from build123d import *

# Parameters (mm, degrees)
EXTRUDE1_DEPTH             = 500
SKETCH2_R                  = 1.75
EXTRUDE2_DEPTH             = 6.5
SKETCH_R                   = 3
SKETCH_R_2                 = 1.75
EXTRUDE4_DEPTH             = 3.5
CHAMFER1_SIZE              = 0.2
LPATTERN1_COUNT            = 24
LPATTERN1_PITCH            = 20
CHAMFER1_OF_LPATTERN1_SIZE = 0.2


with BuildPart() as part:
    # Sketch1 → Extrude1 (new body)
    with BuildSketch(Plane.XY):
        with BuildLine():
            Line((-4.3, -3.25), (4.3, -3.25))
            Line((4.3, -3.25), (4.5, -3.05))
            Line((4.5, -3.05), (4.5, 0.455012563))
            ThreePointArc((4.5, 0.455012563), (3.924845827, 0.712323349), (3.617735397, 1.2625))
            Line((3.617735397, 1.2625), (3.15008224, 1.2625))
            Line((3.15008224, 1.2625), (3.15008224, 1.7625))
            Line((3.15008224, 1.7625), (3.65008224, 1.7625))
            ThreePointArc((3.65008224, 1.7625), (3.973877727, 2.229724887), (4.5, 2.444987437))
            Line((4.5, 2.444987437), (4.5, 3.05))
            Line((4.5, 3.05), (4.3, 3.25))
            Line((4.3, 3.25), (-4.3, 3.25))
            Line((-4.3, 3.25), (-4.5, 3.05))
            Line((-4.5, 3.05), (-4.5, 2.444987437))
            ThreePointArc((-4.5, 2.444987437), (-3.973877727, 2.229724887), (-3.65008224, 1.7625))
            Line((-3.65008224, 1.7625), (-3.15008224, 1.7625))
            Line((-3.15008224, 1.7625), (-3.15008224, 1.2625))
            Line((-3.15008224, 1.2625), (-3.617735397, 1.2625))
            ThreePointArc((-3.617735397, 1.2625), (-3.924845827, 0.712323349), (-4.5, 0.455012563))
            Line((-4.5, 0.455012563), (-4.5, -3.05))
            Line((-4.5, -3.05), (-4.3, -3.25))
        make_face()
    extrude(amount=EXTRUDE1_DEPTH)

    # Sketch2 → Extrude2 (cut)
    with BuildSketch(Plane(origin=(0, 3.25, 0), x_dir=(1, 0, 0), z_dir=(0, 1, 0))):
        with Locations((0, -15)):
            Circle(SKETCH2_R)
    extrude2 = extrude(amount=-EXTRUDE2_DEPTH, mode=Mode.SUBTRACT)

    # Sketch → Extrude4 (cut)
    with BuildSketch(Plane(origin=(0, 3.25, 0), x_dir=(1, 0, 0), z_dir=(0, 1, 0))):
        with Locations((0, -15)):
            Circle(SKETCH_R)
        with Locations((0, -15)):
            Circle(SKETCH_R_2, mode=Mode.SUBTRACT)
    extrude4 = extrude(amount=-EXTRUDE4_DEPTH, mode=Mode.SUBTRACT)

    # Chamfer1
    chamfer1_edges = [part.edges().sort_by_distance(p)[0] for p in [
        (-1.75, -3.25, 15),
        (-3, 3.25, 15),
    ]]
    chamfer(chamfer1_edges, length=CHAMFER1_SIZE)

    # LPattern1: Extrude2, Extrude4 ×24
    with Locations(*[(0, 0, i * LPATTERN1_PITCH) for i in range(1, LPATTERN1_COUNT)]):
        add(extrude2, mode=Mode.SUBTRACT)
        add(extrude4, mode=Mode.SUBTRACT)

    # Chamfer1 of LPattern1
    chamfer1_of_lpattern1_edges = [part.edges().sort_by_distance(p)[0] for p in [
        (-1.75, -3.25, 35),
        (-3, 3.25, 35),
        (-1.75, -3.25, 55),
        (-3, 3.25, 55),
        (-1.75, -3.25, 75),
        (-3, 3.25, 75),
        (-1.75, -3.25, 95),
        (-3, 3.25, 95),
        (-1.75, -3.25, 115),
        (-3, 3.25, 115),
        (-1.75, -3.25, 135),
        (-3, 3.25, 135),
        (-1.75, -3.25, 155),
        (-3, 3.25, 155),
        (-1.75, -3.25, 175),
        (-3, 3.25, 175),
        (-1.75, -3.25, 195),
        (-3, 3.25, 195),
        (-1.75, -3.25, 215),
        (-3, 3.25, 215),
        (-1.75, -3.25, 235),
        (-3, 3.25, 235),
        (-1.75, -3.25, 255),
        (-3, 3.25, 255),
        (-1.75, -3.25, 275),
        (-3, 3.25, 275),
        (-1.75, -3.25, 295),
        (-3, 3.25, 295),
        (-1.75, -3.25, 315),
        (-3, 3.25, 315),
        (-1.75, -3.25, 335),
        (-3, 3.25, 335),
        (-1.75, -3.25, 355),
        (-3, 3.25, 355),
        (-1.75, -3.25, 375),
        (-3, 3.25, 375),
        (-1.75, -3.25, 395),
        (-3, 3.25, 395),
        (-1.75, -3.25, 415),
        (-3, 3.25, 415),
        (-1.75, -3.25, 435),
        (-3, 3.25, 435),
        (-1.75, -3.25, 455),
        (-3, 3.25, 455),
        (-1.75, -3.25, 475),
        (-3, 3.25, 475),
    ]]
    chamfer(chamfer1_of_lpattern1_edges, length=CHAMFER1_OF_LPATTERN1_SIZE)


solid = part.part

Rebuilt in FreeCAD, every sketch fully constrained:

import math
import FreeCAD as App
import Part
import Sketcher

V = App.Vector
Q = App.Units.Quantity


def edges_at(feature, points):
    """Names of the edges that pass closest to the given points."""
    edges = feature.Shape.Edges
    near = lambda p: min(range(len(edges)), key=lambda i: edges[i].distToShape(Part.Vertex(*p))[0])
    return sorted({f"Edge{near(p) + 1}" for p in points})

doc = App.newDocument("Part")
body = doc.addObject("PartDesign::Body", "Body")

# Sketch on XY plane
sketch1 = body.newObject("Sketcher::SketchObject", "Sketch")
sketch1.AttachmentSupport = (doc.getObject("XY_Plane"), [""])
sketch1.MapMode = "FlatFace"
sketch1.addGeometry([
    Part.LineSegment(V(-4.3, -3.25, 0), V(4.3, -3.25, 0)),  # 0
    Part.LineSegment(V(4.3, -3.25, 0), V(4.5, -3.05, 0)),  # 1
    Part.LineSegment(V(4.5, -3.05, 0), V(4.5, 0.46, 0)),  # 2
    Part.ArcOfCircle(Part.Circle(V(4.6, 1.45, 0), V(0, 0, 1), 1), math.radians(-169), math.radians(-96)),  # 3
    Part.LineSegment(V(3.62, 1.26, 0), V(3.15, 1.26, 0)),  # 4
    Part.LineSegment(V(3.15, 1.26, 0), V(3.15, 1.76, 0)),  # 5
    Part.LineSegment(V(3.15, 1.76, 0), V(3.65, 1.76, 0)),  # 6
    Part.ArcOfCircle(Part.Circle(V(4.6, 1.45, 0), V(0, 0, 1), 1), math.radians(96), math.radians(162)),  # 7
    Part.LineSegment(V(4.5, 2.44, 0), V(4.5, 3.05, 0)),  # 8
    Part.LineSegment(V(4.5, 3.05, 0), V(4.3, 3.25, 0)),  # 9
    Part.LineSegment(V(4.3, 3.25, 0), V(-4.3, 3.25, 0)),  # 10
    Part.LineSegment(V(-4.3, 3.25, 0), V(-4.5, 3.05, 0)),  # 11
    Part.LineSegment(V(-4.5, 3.05, 0), V(-4.5, 2.44, 0)),  # 12
    Part.ArcOfCircle(Part.Circle(V(-4.6, 1.45, 0), V(0, 0, 1), 1), math.radians(18), math.radians(84)),  # 13
    Part.LineSegment(V(-3.65, 1.76, 0), V(-3.15, 1.76, 0)),  # 14
    Part.LineSegment(V(-3.15, 1.76, 0), V(-3.15, 1.26, 0)),  # 15
    Part.LineSegment(V(-3.15, 1.26, 0), V(-3.62, 1.26, 0)),  # 16
    Part.ArcOfCircle(Part.Circle(V(-4.6, 1.45, 0), V(0, 0, 1), 1), math.radians(-84), math.radians(-11)),  # 17
    Part.LineSegment(V(-4.5, 0.46, 0), V(-4.5, -3.05, 0)),  # 18
    Part.LineSegment(V(-4.5, -3.05, 0), V(-4.3, -3.25, 0)),  # 19
], False)
sketch1.addConstraint([
    Sketcher.Constraint("Coincident", 0, 2, 1, 1),
    Sketcher.Constraint("Coincident", 1, 2, 2, 1),
    Sketcher.Constraint("Coincident", 2, 2, 3, 2),
    Sketcher.Constraint("Coincident", 3, 1, 4, 1),
    Sketcher.Constraint("Coincident", 4, 2, 5, 1),
    Sketcher.Constraint("Coincident", 5, 2, 6, 1),
    Sketcher.Constraint("Coincident", 6, 2, 7, 2),
    Sketcher.Constraint("Coincident", 7, 1, 8, 1),
    Sketcher.Constraint("Coincident", 8, 2, 9, 1),
    Sketcher.Constraint("Coincident", 9, 2, 10, 1),
    Sketcher.Constraint("Coincident", 10, 2, 11, 1),
    Sketcher.Constraint("Coincident", 11, 2, 12, 1),
    Sketcher.Constraint("Coincident", 12, 2, 13, 2),
    Sketcher.Constraint("Coincident", 13, 1, 14, 1),
    Sketcher.Constraint("Coincident", 14, 2, 15, 1),
    Sketcher.Constraint("Coincident", 15, 2, 16, 1),
    Sketcher.Constraint("Coincident", 16, 2, 17, 2),
    Sketcher.Constraint("Coincident", 17, 1, 18, 1),
    Sketcher.Constraint("Coincident", 18, 2, 19, 1),
    Sketcher.Constraint("Coincident", 19, 2, 0, 1),
    Sketcher.Constraint("Horizontal", 0),
    Sketcher.Constraint("Vertical", 2),
    Sketcher.Constraint("Horizontal", 4),
    Sketcher.Constraint("Vertical", 5),
    Sketcher.Constraint("Horizontal", 6),
    Sketcher.Constraint("Vertical", 8),
    Sketcher.Constraint("Horizontal", 10),
    Sketcher.Constraint("Vertical", 12),
    Sketcher.Constraint("Horizontal", 14),
    Sketcher.Constraint("Vertical", 15),
    Sketcher.Constraint("Horizontal", 16),
    Sketcher.Constraint("Vertical", 18),
    Sketcher.Constraint("Coincident", 7, 3, 3, 3),
    Sketcher.Constraint("Coincident", 17, 3, 13, 3),
    Sketcher.Constraint("Equal", 3, 7),
    Sketcher.Constraint("Equal", 7, 13),
    Sketcher.Constraint("Equal", 13, 17),
    Sketcher.Constraint("Symmetric", 0, 2, 10, 2, -1, 1),
    Sketcher.Constraint("Symmetric", 1, 2, 11, 2, -1, 1),
    Sketcher.Constraint("Symmetric", 8, 2, 18, 2, -1, 1),
    Sketcher.Constraint("Symmetric", 3, 3, 13, 3, -2),
    Sketcher.Constraint("Symmetric", 8, 2, 11, 2, -2),
    Sketcher.Constraint("Symmetric", 5, 2, 14, 2, -2),
    Sketcher.Constraint("Perpendicular", 1, 9),
    Sketcher.Constraint("Perpendicular", 11, 19),
    Sketcher.Constraint("Horizontal", 4, 2, 15, 2),
    Sketcher.Constraint("Vertical", 0, 2, 9, 2),
    Sketcher.Constraint("Equal", 14, 5),
    Sketcher.Constraint("Radius", 3, Q("1 mm")),
    Sketcher.Constraint("DistanceX", 0, 1, 0, 2, Q("8.6 mm")),
    Sketcher.Constraint("DistanceX", 6, 1, 6, 2, Q("0.5 mm")),
    Sketcher.Constraint("DistanceX", -1, 1, 3, 3, Q("4.6 mm")),
    Sketcher.Constraint("DistanceX", -1, 1, 1, 2, Q("4.5 mm")),
    Sketcher.Constraint("DistanceY", 0, 2, 7, 3, Q("4.7 mm")),
    Sketcher.Constraint("DistanceY", 3, 3, 8, 2, Q("1.6 mm")),
    Sketcher.Constraint("DistanceY", -1, 1, 3, 1, Q("1.2625 mm")),
])
pad1 = body.newObject("PartDesign::Pad", "Pad")
pad1.Profile = sketch1
pad1.Length = 500

# Sketch on XZ plane
sketch2 = body.newObject("Sketcher::SketchObject", "Sketch001")
sketch2.AttachmentSupport = (doc.getObject("XZ_Plane"), [""])
sketch2.MapMode = "FlatFace"
sketch2.AttachmentOffset = App.Placement(V(0, 0, -3.25), App.Rotation())
sketch2.addGeometry(Part.Circle(V(0, 15, 0), V(0, 0, 1), 1.8), False)
sketch2.addConstraint([
    Sketcher.Constraint("PointOnObject", 0, 3, -2),
    Sketcher.Constraint("Diameter", 0, Q("3.5 mm")),
    Sketcher.Constraint("DistanceY", -1, 1, 0, 3, Q("15 mm")),
])
pocket1 = body.newObject("PartDesign::Pocket", "Pocket")
pocket1.Profile = sketch2
pocket1.Length = 6.5
pocket1.Reversed = True

# Sketch on XZ plane
sketch3 = body.newObject("Sketcher::SketchObject", "Sketch002")
sketch3.AttachmentSupport = (doc.getObject("XZ_Plane"), [""])
sketch3.MapMode = "FlatFace"
sketch3.AttachmentOffset = App.Placement(V(0, 0, -3.25), App.Rotation())
sketch3.addGeometry([
    Part.Circle(V(0, 15, 0), V(0, 0, 1), 3),
    Part.Circle(V(0, 15, 0), V(0, 0, 1), 1.8),
], False)
sketch3.addConstraint([
    Sketcher.Constraint("Coincident", 1, 3, 0, 3),
    Sketcher.Constraint("PointOnObject", 0, 3, -2),
    Sketcher.Constraint("Diameter", 0, Q("6 mm")),
    Sketcher.Constraint("Diameter", 1, Q("3.5 mm")),
    Sketcher.Constraint("DistanceY", -1, 1, 0, 3, Q("15 mm")),
])
pocket2 = body.newObject("PartDesign::Pocket", "Pocket001")
pocket2.Profile = sketch3
pocket2.Length = 3.5
pocket2.Reversed = True
doc.recompute()

chamfer = body.newObject("PartDesign::Chamfer", "Chamfer")
chamfer.Base = (pocket2, edges_at(pocket2, [(-1.75, -3.25, 15), (-3, 3.25, 15)]))
chamfer.Size = 0.2
doc.recompute()

linearpattern = body.newObject("PartDesign::LinearPattern", "LinearPattern")
linearpattern.Originals = [pocket1, pocket2]
linearpattern.Direction = (doc.getObject("Z_Axis"), [""])
linearpattern.Mode = "offset"
linearpattern.Offset = 20
linearpattern.Occurrences = 24
body.Tip = linearpattern
doc.recompute()

chamfer2 = body.newObject("PartDesign::Chamfer", "Chamfer001")
chamfer2.Base = (linearpattern, edges_at(linearpattern, [
    (-1.75, -3.25, 35),
    (-3, 3.25, 35),
    (-1.75, -3.25, 55),
    (-3, 3.25, 55),
    (-1.75, -3.25, 75),
    (-3, 3.25, 75),
    (-1.75, -3.25, 95),
    (-3, 3.25, 95),
    (-1.75, -3.25, 115),
    (-3, 3.25, 115),
    (-1.75, -3.25, 135),
    (-3, 3.25, 135),
    (-1.75, -3.25, 155),
    (-3, 3.25, 155),
    (-1.75, -3.25, 175),
    (-3, 3.25, 175),
    (-1.75, -3.25, 195),
    (-3, 3.25, 195),
    (-1.75, -3.25, 215),
    (-3, 3.25, 215),
    (-1.75, -3.25, 235),
    (-3, 3.25, 235),
    (-1.75, -3.25, 255),
    (-3, 3.25, 255),
    (-1.75, -3.25, 275),
    (-3, 3.25, 275),
    (-1.75, -3.25, 295),
    (-3, 3.25, 295),
    (-1.75, -3.25, 315),
    (-3, 3.25, 315),
    (-1.75, -3.25, 335),
    (-3, 3.25, 335),
    (-1.75, -3.25, 355),
    (-3, 3.25, 355),
    (-1.75, -3.25, 375),
    (-3, 3.25, 375),
    (-1.75, -3.25, 395),
    (-3, 3.25, 395),
    (-1.75, -3.25, 415),
    (-3, 3.25, 415),
    (-1.75, -3.25, 435),
    (-3, 3.25, 435),
    (-1.75, -3.25, 455),
    (-3, 3.25, 455),
    (-1.75, -3.25, 475),
    (-3, 3.25, 475),
]))
chamfer2.Size = 0.2

doc.recompute()
